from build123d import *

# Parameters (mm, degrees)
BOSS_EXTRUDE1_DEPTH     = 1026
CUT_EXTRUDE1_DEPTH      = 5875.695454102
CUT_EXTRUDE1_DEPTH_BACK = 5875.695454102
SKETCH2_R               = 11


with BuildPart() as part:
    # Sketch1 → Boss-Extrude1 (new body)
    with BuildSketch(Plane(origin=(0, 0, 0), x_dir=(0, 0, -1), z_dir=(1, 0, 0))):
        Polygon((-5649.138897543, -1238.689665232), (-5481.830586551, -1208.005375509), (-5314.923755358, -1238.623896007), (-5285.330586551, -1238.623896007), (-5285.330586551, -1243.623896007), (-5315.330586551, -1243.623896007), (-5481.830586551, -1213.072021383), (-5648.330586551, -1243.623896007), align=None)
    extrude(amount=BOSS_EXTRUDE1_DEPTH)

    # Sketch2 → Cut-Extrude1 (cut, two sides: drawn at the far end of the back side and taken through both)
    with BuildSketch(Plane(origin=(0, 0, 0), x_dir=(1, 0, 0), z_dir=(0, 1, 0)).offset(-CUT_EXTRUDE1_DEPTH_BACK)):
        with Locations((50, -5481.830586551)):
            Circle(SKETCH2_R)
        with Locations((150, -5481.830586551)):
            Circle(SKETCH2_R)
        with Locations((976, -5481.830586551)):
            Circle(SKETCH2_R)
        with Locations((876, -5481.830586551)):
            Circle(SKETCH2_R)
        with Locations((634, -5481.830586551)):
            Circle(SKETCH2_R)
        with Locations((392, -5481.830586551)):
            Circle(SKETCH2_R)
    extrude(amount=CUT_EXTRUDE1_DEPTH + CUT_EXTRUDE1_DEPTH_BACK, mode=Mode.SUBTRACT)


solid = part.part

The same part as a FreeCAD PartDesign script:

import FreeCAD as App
import Part
import Sketcher

doc = App.newDocument("Part")
body = doc.addObject("PartDesign::Body", "Body")

# Sketch on YZ plane
sketch1 = body.newObject("Sketcher::SketchObject", "Sketch")
sketch1.AttachmentSupport = (doc.getObject("YZ_Plane"), [""])
sketch1.MapMode = "FlatFace"
sketch1.addGeometry(Part.LineSegment(App.Vector(-1208, 5482, 0), App.Vector(-1239, 5649, 0)), False)
sketch1.addGeometry(Part.LineSegment(App.Vector(-1239, 5649, 0), App.Vector(-1244, 5648, 0)), False)
sketch1.addGeometry(Part.LineSegment(App.Vector(-1244, 5648, 0), App.Vector(-1213, 5482, 0)), False)
sketch1.addGeometry(Part.LineSegment(App.Vector(-1213, 5482, 0), App.Vector(-1244, 5315, 0)), False)
sketch1.addGeometry(Part.LineSegment(App.Vector(-1244, 5315, 0), App.Vector(-1244, 5285, 0)), False)
sketch1.addGeometry(Part.LineSegment(App.Vector(-1244, 5285, 0), App.Vector(-1239, 5285, 0)), False)
sketch1.addGeometry(Part.LineSegment(App.Vector(-1239, 5285, 0), App.Vector(-1239, 5315, 0)), False)
sketch1.addGeometry(Part.LineSegment(App.Vector(-1239, 5315, 0), App.Vector(-1208, 5482, 0)), False)
sketch1.addConstraint(Sketcher.Constraint("Coincident", 0, 2, 1, 1))
sketch1.addConstraint(Sketcher.Constraint("Coincident", 1, 2, 2, 1))
sketch1.addConstraint(Sketcher.Constraint("Coincident", 2, 2, 3, 1))
sketch1.addConstraint(Sketcher.Constraint("Coincident", 3, 2, 4, 1))
sketch1.addConstraint(Sketcher.Constraint("Coincident", 4, 2, 5, 1))
sketch1.addConstraint(Sketcher.Constraint("Coincident", 5, 2, 6, 1))
sketch1.addConstraint(Sketcher.Constraint("Coincident", 6, 2, 7, 1))
sketch1.addConstraint(Sketcher.Constraint("Coincident", 7, 2, 0, 1))
sketch1.addConstraint(Sketcher.Constraint("Vertical", 4))
sketch1.addConstraint(Sketcher.Constraint("Horizontal", 5))
sketch1.addConstraint(Sketcher.Constraint("Vertical", 6))
sketch1.addConstraint(Sketcher.Constraint("Horizontal", 2, 2, 7, 2))
sketch1.addConstraint(Sketcher.Constraint("Vertical", 1, 2, 3, 2))
sketch1.addConstraint(Sketcher.Constraint("Equal", 2, 3))
sketch1.addConstraint(Sketcher.Constraint("DistanceX", 5, 1, 5, 2, 5.0))
sketch1.addConstraint(Sketcher.Constraint("DistanceY", 4, 2, 4, 1, 30.0))
sketch1.addConstraint(Sketcher.Constraint("Distance", 1, 5.0))
sketch1.addConstraint(Sketcher.Constraint("DistanceY", 3, 2, 1, 2, 333.0))
sketch1.addConstraint(Sketcher.Constraint("DistanceY", 6, 1, 6, 2, 29.593169))
sketch1.addConstraint(Sketcher.Constraint("Distance", 2, 169.279848))
sketch1.addConstraint(Sketcher.Constraint("DistanceX", 2, 2, -1, 1, 1213.072021))
sketch1.addConstraint(Sketcher.Constraint("DistanceX", 1, 2, 0, 2, 4.934231))
sketch1.addConstraint(Sketcher.Constraint("DistanceX", 6, 2, 7, 2, 30.61852))
sketch1.addConstraint(Sketcher.Constraint("DistanceY", -1, 1, 0, 2, 5649.138898))
pad1 = body.newObject("PartDesign::Pad", "Pad")
pad1.Profile = sketch1
pad1.Length = 1026

# Sketch on XZ plane
sketch2 = body.newObject("Sketcher::SketchObject", "Sketch001")
sketch2.AttachmentSupport = (doc.getObject("XZ_Plane"), [""])
sketch2.MapMode = "FlatFace"
sketch2.addGeometry(Part.Circle(App.Vector(50, 5482, 0), App.Vector(0, 0, 1), 11), False)
sketch2.addGeometry(Part.Circle(App.Vector(150, 5482, 0), App.Vector(0, 0, 1), 11), False)
sketch2.addGeometry(Part.Circle(App.Vector(976, 5482, 0), App.Vector(0, 0, 1), 11), False)
sketch2.addGeometry(Part.Circle(App.Vector(876, 5482, 0), App.Vector(0, 0, 1), 11), False)
sketch2.addGeometry(Part.Circle(App.Vector(634, 5482, 0), App.Vector(0, 0, 1), 11), False)
sketch2.addGeometry(Part.Circle(App.Vector(392, 5482, 0), App.Vector(0, 0, 1), 11), False)
sketch2.addConstraint(Sketcher.Constraint("Equal", 0, 1))
sketch2.addConstraint(Sketcher.Constraint("Equal", 1, 2))
sketch2.addConstraint(Sketcher.Constraint("Equal", 2, 3))
sketch2.addConstraint(Sketcher.Constraint("Equal", 3, 4))
sketch2.addConstraint(Sketcher.Constraint("Equal", 4, 5))
sketch2.addConstraint(Sketcher.Constraint("Horizontal", 0, 3, 1, 3))
sketch2.addConstraint(Sketcher.Constraint("Horizontal", 1, 3, 2, 3))
sketch2.addConstraint(Sketcher.Constraint("Horizontal", 2, 3, 3, 3))
sketch2.addConstraint(Sketcher.Constraint("Horizontal", 3, 3, 4, 3))
sketch2.addConstraint(Sketcher.Constraint("Horizontal", 4, 3, 5, 3))
sketch2.addConstraint(Sketcher.Constraint("Diameter", 0, 22.0))
sketch2.addConstraint(Sketcher.Constraint("DistanceX", -1, 1, 0, 3, 50.0))
sketch2.addConstraint(Sketcher.Constraint("DistanceX", -1, 1, 1, 3, 150.0))
sketch2.addConstraint(Sketcher.Constraint("DistanceX", -1, 1, 2, 3, 976.0))
sketch2.addConstraint(Sketcher.Constraint("DistanceX", -1, 1, 3, 3, 876.0))
sketch2.addConstraint(Sketcher.Constraint("DistanceX", -1, 1, 4, 3, 634.0))
sketch2.addConstraint(Sketcher.Constraint("DistanceX", -1, 1, 5, 3, 392.0))
sketch2.addConstraint(Sketcher.Constraint("DistanceY", -1, 1, 0, 3, 5481.830587))
pocket1 = body.newObject("PartDesign::Pocket", "Pocket")
pocket1.Profile = sketch2
pocket1.Type = "ThroughAll"
pocket1.Midplane = True

doc.recompute()
